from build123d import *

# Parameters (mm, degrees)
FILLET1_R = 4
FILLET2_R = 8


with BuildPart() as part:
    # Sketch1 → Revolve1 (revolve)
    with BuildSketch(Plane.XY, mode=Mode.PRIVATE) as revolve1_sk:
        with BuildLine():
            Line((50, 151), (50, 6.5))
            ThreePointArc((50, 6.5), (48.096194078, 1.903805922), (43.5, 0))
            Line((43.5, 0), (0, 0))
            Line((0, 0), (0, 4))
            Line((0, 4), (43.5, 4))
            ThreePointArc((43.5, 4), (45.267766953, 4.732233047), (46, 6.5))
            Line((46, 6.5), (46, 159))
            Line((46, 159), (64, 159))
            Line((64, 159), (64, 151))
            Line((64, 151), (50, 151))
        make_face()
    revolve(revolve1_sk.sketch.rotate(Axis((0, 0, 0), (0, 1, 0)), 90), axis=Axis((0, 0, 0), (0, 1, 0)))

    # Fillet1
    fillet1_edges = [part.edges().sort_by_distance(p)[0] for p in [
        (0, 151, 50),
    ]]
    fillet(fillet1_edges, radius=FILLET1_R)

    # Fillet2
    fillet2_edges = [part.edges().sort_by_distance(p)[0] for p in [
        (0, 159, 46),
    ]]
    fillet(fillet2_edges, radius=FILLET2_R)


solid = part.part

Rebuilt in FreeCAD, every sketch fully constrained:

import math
import FreeCAD as App
import Part
import Sketcher
from FreeCAD import Vector
Q = App.Units.Quantity


def edges_at(feature, points):
    """Names of the edges that pass closest to the given points."""
    edges = feature.Shape.Edges
    near = lambda p: min(range(len(edges)), key=lambda i: edges[i].distToShape(Part.Vertex(*p))[0])
    return sorted({f"Edge{near(p) + 1}" for p in points})

doc = App.newDocument("Part")
body = doc.addObject("PartDesign::Body", "Body")

sketch1 = doc.addObject("Sketcher::SketchObject", "Sketch")
body.addObject(sketch1)
sketch1.AttachmentSupport = (doc.XY_Plane, [""])
sketch1.MapMode = "FlatFace"
sketch1.addGeometry([
    Part.LineSegment(Vector(50, 6.5, 0), Vector(50, 151, 0)),
    Part.LineSegment(Vector(50, 151, 0), Vector(64, 151, 0)),
    Part.LineSegment(Vector(64, 151, 0), Vector(64, 159, 0)),
    Part.LineSegment(Vector(64, 159, 0), Vector(46, 159, 0)),
    Part.LineSegment(Vector(46, 159, 0), Vector(46, 6.5, 0)),
    Part.ArcOfCircle(Part.Circle(Vector(43.5, 6.5, 0), Vector(0, 0, 1), 2.5), math.radians(-90), math.radians(0)),
    Part.LineSegment(Vector(43.5, 4, 0), Vector(0, 4, 0)),
    Part.LineSegment(Vector(0, 4, 0), Vector(0, 0, 0)),
    Part.LineSegment(Vector(0, 0, 0), Vector(43.5, 0, 0)),
    Part.ArcOfCircle(Part.Circle(Vector(43.5, 6.5, 0), Vector(0, 0, 1), 6.5), math.radians(-90), math.radians(0)),
], False)
sketch1.addConstraint([
    Sketcher.Constraint("Coincident", 0, 2, 1, 1),
    Sketcher.Constraint("Coincident", 1, 2, 2, 1),
    Sketcher.Constraint("Coincident", 2, 2, 3, 1),
    Sketcher.Constraint("Coincident", 3, 2, 4, 1),
    Sketcher.Constraint("Tangent", 4, 2, 5, 2),
    Sketcher.Constraint("Tangent", 5, 1, 6, 1),
    Sketcher.Constraint("Coincident", 6, 2, 7, 1),
    Sketcher.Constraint("Coincident", 7, 2, 8, 1),
    Sketcher.Constraint("Tangent", 8, 2, 9, 1),
    Sketcher.Constraint("Tangent", 9, 2, 0, 1),
    Sketcher.Constraint("Vertical", 0),
    Sketcher.Constraint("Horizontal", 1),
    Sketcher.Constraint("Vertical", 2),
    Sketcher.Constraint("Horizontal", 3),
    Sketcher.Constraint("Vertical", 4),
    Sketcher.Constraint("Horizontal", 6),
    Sketcher.Constraint("Vertical", 7),
    Sketcher.Constraint("Horizontal", 8),
    Sketcher.Constraint("Coincident", 7, 2, -1, 1),
    Sketcher.Constraint("Coincident", 9, 3, 5, 3),
    Sketcher.Constraint("Radius", 5, Q("2.5 mm")),
    Sketcher.Constraint("Radius", 9, Q("6.5 mm")),
    Sketcher.Constraint("DistanceX", 1, 1, 1, 2, Q("14 mm")),
    Sketcher.Constraint("DistanceY", 2, 1, 2, 2, Q("8 mm")),
    Sketcher.Constraint("DistanceX", 6, 2, 6, 1, Q("43.5 mm")),
    Sketcher.Constraint("DistanceY", 0, 1, 0, 2, Q("144.5 mm")),
])
revolution = doc.addObject("PartDesign::Revolution", "Revolution")
body.addObject(revolution)
revolution.Profile = sketch1
revolution.ReferenceAxis = (sketch1, ["V_Axis"])
revolution.Angle = 360
doc.recompute()

fillet = doc.addObject("PartDesign::Fillet", "Fillet")
body.addObject(fillet)
fillet.Base = (revolution, edges_at(revolution, [(0, 151, 50)]))
fillet.Radius = 4
doc.recompute()

fillet2 = doc.addObject("PartDesign::Fillet", "Fillet001")
body.addObject(fillet2)
fillet2.Base = (fillet, edges_at(fillet, [(0, 159, 46)]))
fillet2.Radius = 8

doc.recompute()
